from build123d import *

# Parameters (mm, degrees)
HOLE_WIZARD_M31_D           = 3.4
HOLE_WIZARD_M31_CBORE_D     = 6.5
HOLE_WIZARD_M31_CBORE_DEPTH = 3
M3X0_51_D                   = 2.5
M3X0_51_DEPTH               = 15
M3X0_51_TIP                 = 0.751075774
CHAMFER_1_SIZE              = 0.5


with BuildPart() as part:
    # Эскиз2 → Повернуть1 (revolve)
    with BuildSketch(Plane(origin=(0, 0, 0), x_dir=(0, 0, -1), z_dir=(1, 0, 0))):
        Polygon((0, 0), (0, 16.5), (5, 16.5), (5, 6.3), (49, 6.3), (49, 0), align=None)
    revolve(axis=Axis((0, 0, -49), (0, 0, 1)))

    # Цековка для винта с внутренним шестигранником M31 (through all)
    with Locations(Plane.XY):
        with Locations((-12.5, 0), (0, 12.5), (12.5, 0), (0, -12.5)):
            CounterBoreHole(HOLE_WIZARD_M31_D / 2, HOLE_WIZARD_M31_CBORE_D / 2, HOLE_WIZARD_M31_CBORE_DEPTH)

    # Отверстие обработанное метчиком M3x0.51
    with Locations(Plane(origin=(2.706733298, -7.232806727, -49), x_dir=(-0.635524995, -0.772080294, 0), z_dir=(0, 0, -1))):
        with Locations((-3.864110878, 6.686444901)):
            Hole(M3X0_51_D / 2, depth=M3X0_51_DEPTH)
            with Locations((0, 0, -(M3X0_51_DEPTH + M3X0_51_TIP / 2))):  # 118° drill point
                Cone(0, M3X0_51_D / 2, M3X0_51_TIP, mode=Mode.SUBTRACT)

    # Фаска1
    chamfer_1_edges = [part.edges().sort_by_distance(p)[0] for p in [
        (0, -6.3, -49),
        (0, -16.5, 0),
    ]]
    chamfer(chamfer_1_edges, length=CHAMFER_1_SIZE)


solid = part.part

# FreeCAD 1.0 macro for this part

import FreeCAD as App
import Part
import Sketcher
Q = App.Units.Quantity


def edges_at(feature, points):
    """Names of the edges that pass closest to the given points."""
    edges = feature.Shape.Edges
    near = lambda p: min(range(len(edges)), key=lambda i: edges[i].distToShape(Part.Vertex(*p))[0])
    return sorted({f"Edge{near(p) + 1}" for p in points})


def add_polygon(sketch, points):
    """Adds a closed chain of lines whose ends are joined by coincident constraints."""
    first, n = sketch.GeometryCount, len(points)
    for a, b in zip(points, points[1:] + points[:1]):
        sketch.addGeometry(Part.LineSegment(App.Vector(*a, 0), App.Vector(*b, 0)), False)
    for i in range(n):
        sketch.addConstraint(Sketcher.Constraint("Coincident", first + i, 2, first + (i + 1) % n, 1))

doc = App.newDocument("Part")
body = doc.addObject("PartDesign::Body", "Body")

# Sketch on YZ plane
sketch1 = doc.addObject("Sketcher::SketchObject", "Sketch")
body.addObject(sketch1)
sketch1.AttachmentSupport = (doc.YZ_Plane, [""])
sketch1.MapMode = "FlatFace"
add_polygon(sketch1, [(16, 0), (0, 0), (0, -49), (6, -49), (6, -5), (16, -5)])  # lines 0-5
sketch1.addConstraint(Sketcher.Constraint("Horizontal", 0))
sketch1.addConstraint(Sketcher.Constraint("Vertical", 1))
sketch1.addConstraint(Sketcher.Constraint("Horizontal", 2))
sketch1.addConstraint(Sketcher.Constraint("Vertical", 3))
sketch1.addConstraint(Sketcher.Constraint("Horizontal", 4))
sketch1.addConstraint(Sketcher.Constraint("Vertical", 5))
sketch1.addConstraint(Sketcher.Constraint("Coincident", 0, 2, -1, 1))
sketch1.addConstraint(Sketcher.Constraint("DistanceY", 1, 2, 1, 1, Q("49 mm")))
sketch1.addConstraint(Sketcher.Constraint("DistanceY", 3, 1, 3, 2, Q("44 mm")))
sketch1.addConstraint(Sketcher.Constraint("DistanceX", 0, 2, 0, 1, Q("16.5 mm")))
sketch1.addConstraint(Sketcher.Constraint("DistanceX", 2, 1, 2, 2, Q("6.3 mm")))
revolution = doc.addObject("PartDesign::Revolution", "Revolution")
body.addObject(revolution)
revolution.Profile = sketch1
revolution.ReferenceAxis = (sketch1, ["V_Axis"])
revolution.Angle = 360

# Sketch on XY plane
sketch2 = doc.addObject("Sketcher::SketchObject", "Sketch001")
body.addObject(sketch2)
sketch2.AttachmentSupport = (doc.XY_Plane, [""])
sketch2.MapMode = "FlatFace"
sketch2.addGeometry(Part.Circle(App.Vector(-12.5, 0, 0), App.Vector(0, 0, 1), 1.7), False)
sketch2.addGeometry(Part.Circle(App.Vector(0, 12.5, 0), App.Vector(0, 0, 1), 1.7), False)
sketch2.addGeometry(Part.Circle(App.Vector(12.5, 0, 0), App.Vector(0, 0, 1), 1.7), False)
sketch2.addGeometry(Part.Circle(App.Vector(0, -12.5, 0), App.Vector(0, 0, 1), 1.7), False)
sketch2.addConstraint(Sketcher.Constraint("Equal", 0, 1))
sketch2.addConstraint(Sketcher.Constraint("Equal", 1, 2))
sketch2.addConstraint(Sketcher.Constraint("Equal", 2, 3))
sketch2.addConstraint(Sketcher.Constraint("Symmetric", 0, 3, 2, 3, -1, 1))
sketch2.addConstraint(Sketcher.Constraint("Symmetric", 1, 3, 3, 3, -1, 1))
sketch2.addConstraint(Sketcher.Constraint("PointOnObject", 0, 3, -1))
sketch2.addConstraint(Sketcher.Constraint("PointOnObject", 1, 3, -2))
sketch2.addConstraint(Sketcher.Constraint("Diameter", 0, Q("3.4 mm")))
sketch2.addConstraint(Sketcher.Constraint("DistanceX", 0, 3, 2, 3, Q("25 mm")))
sketch2.addConstraint(Sketcher.Constraint("DistanceY", 3, 3, 1, 3, Q("25 mm")))
doc.recompute()
hole = doc.addObject("PartDesign::Hole", "Hole")
body.addObject(hole)
hole.Profile = sketch2
hole.ThreadType = "None"
hole.Diameter = 3.4
hole.DepthType = "ThroughAll"
hole.HoleCutType = "Counterbore"
hole.HoleCutDiameter = 6.5
hole.HoleCutDepth = 3

# Sketch on XY plane
sketch3 = doc.addObject("Sketcher::SketchObject", "Sketch002")
body.addObject(sketch3)
sketch3.AttachmentSupport = (doc.XY_Plane, [""])
sketch3.MapMode = "FlatFace"
sketch3.AttachmentOffset = App.Placement(App.Vector(0, 0, -49), App.Rotation())
sketch3.addGeometry(Part.Circle(App.Vector(0, 0, 0), App.Vector(0, 0, 1), 1.2), False)
sketch3.addConstraint(Sketcher.Constraint("Coincident", 0, 3, -1, 1))
sketch3.addConstraint(Sketcher.Constraint("Diameter", 0, Q("2.5 mm")))
doc.recompute()
hole2 = doc.addObject("PartDesign::Hole", "Hole001")
body.addObject(hole2)
hole2.Profile = sketch3
hole2.ThreadType = "None"
hole2.Diameter = 2.5
hole2.DepthType = "Dimension"
hole2.Depth = 15
hole2.DrillPoint = "Angled"
hole2.DrillPointAngle = 118
hole2.Reversed = True
doc.recompute()

chamfer = doc.addObject("PartDesign::Chamfer", "Chamfer")
body.addObject(chamfer)
chamfer.Base = (hole2, edges_at(hole2, [(0, -6.3, -49), (0, -16.5, 0)]))
chamfer.Size = 0.5

doc.recompute()
